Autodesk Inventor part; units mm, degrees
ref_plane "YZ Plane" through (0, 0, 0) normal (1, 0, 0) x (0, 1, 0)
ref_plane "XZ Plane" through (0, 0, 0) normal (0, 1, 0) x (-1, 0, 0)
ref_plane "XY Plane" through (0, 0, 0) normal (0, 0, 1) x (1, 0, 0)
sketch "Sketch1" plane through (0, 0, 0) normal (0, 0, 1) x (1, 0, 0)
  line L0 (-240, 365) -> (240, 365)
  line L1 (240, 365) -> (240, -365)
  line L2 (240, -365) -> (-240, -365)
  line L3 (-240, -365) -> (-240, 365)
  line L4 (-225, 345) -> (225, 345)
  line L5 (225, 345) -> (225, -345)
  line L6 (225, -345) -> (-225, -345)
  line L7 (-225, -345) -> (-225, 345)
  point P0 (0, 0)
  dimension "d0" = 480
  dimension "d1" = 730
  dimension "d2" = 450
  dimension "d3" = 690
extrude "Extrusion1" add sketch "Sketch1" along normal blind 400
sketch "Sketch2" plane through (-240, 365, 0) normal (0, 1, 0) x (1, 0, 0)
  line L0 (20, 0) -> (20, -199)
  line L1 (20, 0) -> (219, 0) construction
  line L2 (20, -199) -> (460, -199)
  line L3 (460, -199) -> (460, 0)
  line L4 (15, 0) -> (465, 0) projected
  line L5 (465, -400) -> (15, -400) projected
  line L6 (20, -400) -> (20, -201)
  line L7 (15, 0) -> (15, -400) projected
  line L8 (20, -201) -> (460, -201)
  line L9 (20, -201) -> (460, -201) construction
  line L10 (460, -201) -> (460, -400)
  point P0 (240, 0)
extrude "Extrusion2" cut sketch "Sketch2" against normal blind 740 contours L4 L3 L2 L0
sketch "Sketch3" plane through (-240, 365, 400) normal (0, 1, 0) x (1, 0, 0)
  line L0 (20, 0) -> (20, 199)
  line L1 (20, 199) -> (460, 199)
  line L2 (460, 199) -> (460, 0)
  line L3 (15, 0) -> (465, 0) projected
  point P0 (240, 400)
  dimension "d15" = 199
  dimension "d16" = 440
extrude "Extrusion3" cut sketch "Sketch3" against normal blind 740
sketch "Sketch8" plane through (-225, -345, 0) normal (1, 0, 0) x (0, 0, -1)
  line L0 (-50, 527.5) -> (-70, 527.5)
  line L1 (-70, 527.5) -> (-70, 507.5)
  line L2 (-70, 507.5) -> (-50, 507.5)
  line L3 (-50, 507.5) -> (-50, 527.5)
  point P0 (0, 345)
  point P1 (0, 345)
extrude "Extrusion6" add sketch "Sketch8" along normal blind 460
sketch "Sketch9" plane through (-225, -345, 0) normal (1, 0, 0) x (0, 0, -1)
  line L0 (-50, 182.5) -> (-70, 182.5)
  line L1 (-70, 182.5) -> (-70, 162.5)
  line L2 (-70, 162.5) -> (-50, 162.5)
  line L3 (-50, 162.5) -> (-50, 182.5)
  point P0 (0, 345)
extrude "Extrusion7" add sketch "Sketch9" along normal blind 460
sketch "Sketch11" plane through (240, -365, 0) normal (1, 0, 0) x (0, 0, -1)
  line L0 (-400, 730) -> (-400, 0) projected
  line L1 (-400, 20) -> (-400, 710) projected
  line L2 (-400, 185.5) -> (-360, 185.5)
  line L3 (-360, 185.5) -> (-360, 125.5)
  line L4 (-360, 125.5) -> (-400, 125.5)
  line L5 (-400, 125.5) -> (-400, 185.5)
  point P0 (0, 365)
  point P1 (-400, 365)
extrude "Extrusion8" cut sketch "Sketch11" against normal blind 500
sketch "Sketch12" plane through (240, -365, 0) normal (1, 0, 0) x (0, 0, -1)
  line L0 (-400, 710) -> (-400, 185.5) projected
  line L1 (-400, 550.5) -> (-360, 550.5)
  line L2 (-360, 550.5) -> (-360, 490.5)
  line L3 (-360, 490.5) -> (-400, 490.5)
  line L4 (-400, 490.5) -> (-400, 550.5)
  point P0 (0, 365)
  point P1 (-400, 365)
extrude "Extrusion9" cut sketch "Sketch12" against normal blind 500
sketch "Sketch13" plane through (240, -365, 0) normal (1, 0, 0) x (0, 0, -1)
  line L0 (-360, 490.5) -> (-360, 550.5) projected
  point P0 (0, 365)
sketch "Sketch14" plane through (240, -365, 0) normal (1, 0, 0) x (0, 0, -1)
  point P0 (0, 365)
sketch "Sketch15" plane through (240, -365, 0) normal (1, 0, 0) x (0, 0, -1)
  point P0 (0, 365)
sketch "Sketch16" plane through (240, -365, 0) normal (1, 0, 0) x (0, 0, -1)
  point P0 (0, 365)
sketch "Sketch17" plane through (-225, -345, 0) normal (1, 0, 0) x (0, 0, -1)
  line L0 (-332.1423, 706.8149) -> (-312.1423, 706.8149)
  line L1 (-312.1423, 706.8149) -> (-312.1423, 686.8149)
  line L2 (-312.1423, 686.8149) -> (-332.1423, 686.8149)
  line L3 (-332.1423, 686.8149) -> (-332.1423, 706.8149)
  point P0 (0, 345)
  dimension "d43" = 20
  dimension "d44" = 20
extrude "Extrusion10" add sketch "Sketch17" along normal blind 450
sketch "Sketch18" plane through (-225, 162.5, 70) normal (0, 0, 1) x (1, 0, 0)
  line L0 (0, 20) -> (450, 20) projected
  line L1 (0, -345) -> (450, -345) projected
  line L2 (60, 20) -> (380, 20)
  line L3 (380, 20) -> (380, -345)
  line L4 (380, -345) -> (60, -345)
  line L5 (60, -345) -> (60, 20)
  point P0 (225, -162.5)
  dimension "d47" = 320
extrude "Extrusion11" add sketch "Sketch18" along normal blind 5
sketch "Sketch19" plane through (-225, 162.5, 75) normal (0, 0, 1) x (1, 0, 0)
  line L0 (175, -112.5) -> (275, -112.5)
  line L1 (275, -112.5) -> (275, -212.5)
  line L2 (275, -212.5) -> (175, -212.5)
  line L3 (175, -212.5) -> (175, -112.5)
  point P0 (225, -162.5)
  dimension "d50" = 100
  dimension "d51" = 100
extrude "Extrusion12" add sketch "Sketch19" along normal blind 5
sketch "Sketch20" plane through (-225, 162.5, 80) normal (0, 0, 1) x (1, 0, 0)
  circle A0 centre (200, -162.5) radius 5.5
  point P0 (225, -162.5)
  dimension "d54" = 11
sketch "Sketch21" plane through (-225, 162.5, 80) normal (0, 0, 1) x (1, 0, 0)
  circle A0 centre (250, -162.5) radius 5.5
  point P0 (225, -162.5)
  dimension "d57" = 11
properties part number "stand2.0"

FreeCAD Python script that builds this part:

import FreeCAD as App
import Part
import Sketcher

V = App.Vector

doc = App.newDocument("Part")
body = doc.addObject("PartDesign::Body", "Body")

# Sketch on XY plane
sketch1 = body.newObject("Sketcher::SketchObject", "Sketch")
sketch1.AttachmentSupport = (doc.getObject("XY_Plane"), [""])
sketch1.MapMode = "FlatFace"
sketch1.addGeometry(Part.LineSegment(V(240, 365, 0), V(-240, 365, 0)), False)
sketch1.addGeometry(Part.LineSegment(V(-240, 365, 0), V(-240, -365, 0)), False)
sketch1.addGeometry(Part.LineSegment(V(-240, -365, 0), V(240, -365, 0)), False)
sketch1.addGeometry(Part.LineSegment(V(240, -365, 0), V(240, 365, 0)), False)
sketch1.addGeometry(Part.LineSegment(V(-225, -345, 0), V(-225, 345, 0)), False)
sketch1.addGeometry(Part.LineSegment(V(-225, 345, 0), V(225, 345, 0)), False)
sketch1.addGeometry(Part.LineSegment(V(225, 345, 0), V(225, -345, 0)), False)
sketch1.addGeometry(Part.LineSegment(V(225, -345, 0), V(-225, -345, 0)), False)
sketch1.addConstraint(Sketcher.Constraint("Coincident", 0, 2, 1, 1))
sketch1.addConstraint(Sketcher.Constraint("Coincident", 1, 2, 2, 1))
sketch1.addConstraint(Sketcher.Constraint("Coincident", 2, 2, 3, 1))
sketch1.addConstraint(Sketcher.Constraint("Coincident", 3, 2, 0, 1))
sketch1.addConstraint(Sketcher.Constraint("Coincident", 4, 2, 5, 1))
sketch1.addConstraint(Sketcher.Constraint("Coincident", 5, 2, 6, 1))
sketch1.addConstraint(Sketcher.Constraint("Coincident", 6, 2, 7, 1))
sketch1.addConstraint(Sketcher.Constraint("Coincident", 7, 2, 4, 1))
sketch1.addConstraint(Sketcher.Constraint("Horizontal", 0))
sketch1.addConstraint(Sketcher.Constraint("Vertical", 1))
sketch1.addConstraint(Sketcher.Constraint("Horizontal", 2))
sketch1.addConstraint(Sketcher.Constraint("Vertical", 3))
sketch1.addConstraint(Sketcher.Constraint("Vertical", 4))
sketch1.addConstraint(Sketcher.Constraint("Horizontal", 5))
sketch1.addConstraint(Sketcher.Constraint("Vertical", 6))
sketch1.addConstraint(Sketcher.Constraint("Horizontal", 7))
sketch1.addConstraint(Sketcher.Constraint("Symmetric", 0, 2, 2, 2, -1, 1))
sketch1.addConstraint(Sketcher.Constraint("Symmetric", 4, 2, 6, 2, -1, 1))
sketch1.addConstraint(Sketcher.Constraint("DistanceX", 0, 2, 0, 1, 480.0))
sketch1.addConstraint(Sketcher.Constraint("DistanceX", 5, 1, 5, 2, 450.0))
sketch1.addConstraint(Sketcher.Constraint("DistanceY", 1, 2, 1, 1, 730.0))
sketch1.addConstraint(Sketcher.Constraint("DistanceY", 4, 1, 4, 2, 690.0))
pad1 = body.newObject("PartDesign::Pad", "Pad")
pad1.Profile = sketch1
pad1.Length = 400

# Sketch on XZ plane
sketch2 = body.newObject("Sketcher::SketchObject", "Sketch001")
sketch2.AttachmentSupport = (doc.getObject("XZ_Plane"), [""])
sketch2.MapMode = "FlatFace"
sketch2.AttachmentOffset = App.Placement(V(0, 0, -365), App.Rotation())
sketch2.addGeometry(Part.LineSegment(V(220, 0, 0), V(-220, 0, 0)), False)
sketch2.addGeometry(Part.LineSegment(V(-220, 0, 0), V(-220, 199, 0)), False)
sketch2.addGeometry(Part.LineSegment(V(-220, 199, 0), V(220, 199, 0)), False)
sketch2.addGeometry(Part.LineSegment(V(220, 199, 0), V(220, 0, 0)), False)
sketch2.addConstraint(Sketcher.Constraint("Coincident", 0, 2, 1, 1))
sketch2.addConstraint(Sketcher.Constraint("Coincident", 1, 2, 2, 1))
sketch2.addConstraint(Sketcher.Constraint("Coincident", 2, 2, 3, 1))
sketch2.addConstraint(Sketcher.Constraint("Coincident", 3, 2, 0, 1))
sketch2.addConstraint(Sketcher.Constraint("Horizontal", 0))
sketch2.addConstraint(Sketcher.Constraint("Vertical", 1))
sketch2.addConstraint(Sketcher.Constraint("Horizontal", 2))
sketch2.addConstraint(Sketcher.Constraint("Vertical", 3))
sketch2.addConstraint(Sketcher.Constraint("Symmetric", 0, 2, 3, 2, -1, 1))
sketch2.addConstraint(Sketcher.Constraint("DistanceX", 0, 2, 0, 1, 440.0))
sketch2.addConstraint(Sketcher.Constraint("DistanceY", 1, 1, 1, 2, 199.0))
pocket1 = body.newObject("PartDesign::Pocket", "Pocket")
pocket1.Profile = sketch2
pocket1.Length = 740
pocket1.Reversed = True

# Sketch on XZ plane
sketch3 = body.newObject("Sketcher::SketchObject", "Sketch002")
sketch3.AttachmentSupport = (doc.getObject("XZ_Plane"), [""])
sketch3.MapMode = "FlatFace"
sketch3.AttachmentOffset = App.Placement(V(0, 0, -365), App.Rotation())
sketch3.addGeometry(Part.LineSegment(V(-220, 201, 0), V(-220, 400, 0)), False)
sketch3.addGeometry(Part.LineSegment(V(-220, 400, 0), V(220, 400, 0)), False)
sketch3.addGeometry(Part.LineSegment(V(220, 400, 0), V(220, 201, 0)), False)
sketch3.addGeometry(Part.LineSegment(V(220, 201, 0), V(-220, 201, 0)), False)
sketch3.addConstraint(Sketcher.Constraint("Coincident", 0, 2, 1, 1))
sketch3.addConstraint(Sketcher.Constraint("Coincident", 1, 2, 2, 1))
sketch3.addConstraint(Sketcher.Constraint("Coincident", 2, 2, 3, 1))
sketch3.addConstraint(Sketcher.Constraint("Coincident", 3, 2, 0, 1))
sketch3.addConstraint(Sketcher.Constraint("Vertical", 0))
sketch3.addConstraint(Sketcher.Constraint("Horizontal", 1))
sketch3.addConstraint(Sketcher.Constraint("Vertical", 2))
sketch3.addConstraint(Sketcher.Constraint("Horizontal", 3))
sketch3.addConstraint(Sketcher.Constraint("DistanceX", 1, 1, 1, 2, 440.0))
sketch3.addConstraint(Sketcher.Constraint("DistanceY", 0, 1, 0, 2, 199.0))
sketch3.addConstraint(Sketcher.Constraint("DistanceX", 0, 2, -1, 1, 220.0))
sketch3.addConstraint(Sketcher.Constraint("DistanceY", -1, 1, 0, 2, 400.0))
pocket2 = body.newObject("PartDesign::Pocket", "Pocket001")
pocket2.Profile = sketch3
pocket2.Length = 740
pocket2.Reversed = True

# Sketch on YZ plane
sketch4 = body.newObject("Sketcher::SketchObject", "Sketch003")
sketch4.AttachmentSupport = (doc.getObject("YZ_Plane"), [""])
sketch4.MapMode = "FlatFace"
sketch4.AttachmentOffset = App.Placement(V(0, 0, -225), App.Rotation())
sketch4.addGeometry(Part.LineSegment(V(162.5, 50, 0), V(182.5, 50, 0)), False)
sketch4.addGeometry(Part.LineSegment(V(182.5, 50, 0), V(182.5, 70, 0)), False)
sketch4.addGeometry(Part.LineSegment(V(182.5, 70, 0), V(162.5, 70, 0)), False)
sketch4.addGeometry(Part.LineSegment(V(162.5, 70, 0), V(162.5, 50, 0)), False)
sketch4.addConstraint(Sketcher.Constraint("Coincident", 0, 2, 1, 1))
sketch4.addConstraint(Sketcher.Constraint("Coincident", 1, 2, 2, 1))
sketch4.addConstraint(Sketcher.Constraint("Coincident", 2, 2, 3, 1))
sketch4.addConstraint(Sketcher.Constraint("Coincident", 3, 2, 0, 1))
sketch4.addConstraint(Sketcher.Constraint("Horizontal", 0))
sketch4.addConstraint(Sketcher.Constraint("Vertical", 1))
sketch4.addConstraint(Sketcher.Constraint("Horizontal", 2))
sketch4.addConstraint(Sketcher.Constraint("Vertical", 3))
sketch4.addConstraint(Sketcher.Constraint("Equal", 2, 1))
sketch4.addConstraint(Sketcher.Constraint("DistanceX", 0, 1, 0, 2, 20.0))
sketch4.addConstraint(Sketcher.Constraint("DistanceY", -1, 1, 0, 2, 50.0))
sketch4.addConstraint(Sketcher.Constraint("DistanceX", -1, 1, 0, 2, 182.5))
pad2 = body.newObject("PartDesign::Pad", "Pad001")
pad2.Profile = sketch4
pad2.Length = 460

# Sketch on YZ plane
sketch5 = body.newObject("Sketcher::SketchObject", "Sketch004")
sketch5.AttachmentSupport = (doc.getObject("YZ_Plane"), [""])
sketch5.MapMode = "FlatFace"
sketch5.AttachmentOffset = App.Placement(V(0, 0, -225), App.Rotation())
sketch5.addGeometry(Part.LineSegment(V(-182.5, 50, 0), V(-162.5, 50, 0)), False)
sketch5.addGeometry(Part.LineSegment(V(-162.5, 50, 0), V(-162.5, 70, 0)), False)
sketch5.addGeometry(Part.LineSegment(V(-162.5, 70, 0), V(-182.5, 70, 0)), False)
sketch5.addGeometry(Part.LineSegment(V(-182.5, 70, 0), V(-182.5, 50, 0)), False)
sketch5.addConstraint(Sketcher.Constraint("Coincident", 0, 2, 1, 1))
sketch5.addConstraint(Sketcher.Constraint("Coincident", 1, 2, 2, 1))
sketch5.addConstraint(Sketcher.Constraint("Coincident", 2, 2, 3, 1))
sketch5.addConstraint(Sketcher.Constraint("Coincident", 3, 2, 0, 1))
sketch5.addConstraint(Sketcher.Constraint("Horizontal", 0))
sketch5.addConstraint(Sketcher.Constraint("Vertical", 1))
sketch5.addConstraint(Sketcher.Constraint("Horizontal", 2))
sketch5.addConstraint(Sketcher.Constraint("Vertical", 3))
sketch5.addConstraint(Sketcher.Constraint("Equal", 2, 1))
sketch5.addConstraint(Sketcher.Constraint("DistanceX", 0, 1, 0, 2, 20.0))
sketch5.addConstraint(Sketcher.Constraint("DistanceY", -1, 1, 0, 2, 50.0))
sketch5.addConstraint(Sketcher.Constraint("DistanceX", 0, 2, -1, 1, 162.5))
pad3 = body.newObject("PartDesign::Pad", "Pad002")
pad3.Profile = sketch5
pad3.Length = 460

# Sketch on YZ plane
sketch6 = body.newObject("Sketcher::SketchObject", "Sketch005")
sketch6.AttachmentSupport = (doc.getObject("YZ_Plane"), [""])
sketch6.MapMode = "FlatFace"
sketch6.AttachmentOffset = App.Placement(V(0, 0, 240), App.Rotation())
sketch6.addGeometry(Part.LineSegment(V(-179.5, 360, 0), V(-179.5, 400, 0)), False)
sketch6.addGeometry(Part.LineSegment(V(-179.5, 400, 0), V(-239.5, 400, 0)), False)
sketch6.addGeometry(Part.LineSegment(V(-239.5, 400, 0), V(-239.5, 360, 0)), False)
sketch6.addGeometry(Part.LineSegment(V(-239.5, 360, 0), V(-179.5, 360, 0)), False)
sketch6.addConstraint(Sketcher.Constraint("Coincident", 0, 2, 1, 1))
sketch6.addConstraint(Sketcher.Constraint("Coincident", 1, 2, 2, 1))
sketch6.addConstraint(Sketcher.Constraint("Coincident", 2, 2, 3, 1))
sketch6.addConstraint(Sketcher.Constraint("Coincident", 3, 2, 0, 1))
sketch6.addConstraint(Sketcher.Constraint("Vertical", 0))
sketch6.addConstraint(Sketcher.Constraint("Horizontal", 1))
sketch6.addConstraint(Sketcher.Constraint("Vertical", 2))
sketch6.addConstraint(Sketcher.Constraint("Horizontal", 3))
sketch6.addConstraint(Sketcher.Constraint("DistanceX", 1, 2, 1, 1, 60.0))
sketch6.addConstraint(Sketcher.Constraint("DistanceY", 0, 1, 0, 2, 40.0))
sketch6.addConstraint(Sketcher.Constraint("DistanceY", -1, 1, 0, 2, 400.0))
sketch6.addConstraint(Sketcher.Constraint("DistanceX", 0, 2, -1, 1, 179.5))
pocket3 = body.newObject("PartDesign::Pocket", "Pocket002")
pocket3.Profile = sketch6
pocket3.Length = 500

# Sketch on YZ plane
sketch7 = body.newObject("Sketcher::SketchObject", "Sketch006")
sketch7.AttachmentSupport = (doc.getObject("YZ_Plane"), [""])
sketch7.MapMode = "FlatFace"
sketch7.AttachmentOffset = App.Placement(V(0, 0, 240), App.Rotation())
sketch7.addGeometry(Part.LineSegment(V(185.5, 360, 0), V(185.5, 400, 0)), False)
sketch7.addGeometry(Part.LineSegment(V(185.5, 400, 0), V(125.5, 400, 0)), False)
sketch7.addGeometry(Part.LineSegment(V(125.5, 400, 0), V(125.5, 360, 0)), False)
sketch7.addGeometry(Part.LineSegment(V(125.5, 360, 0), V(185.5, 360, 0)), False)
sketch7.addConstraint(Sketcher.Constraint("Coincident", 0, 2, 1, 1))
sketch7.addConstraint(Sketcher.Constraint("Coincident", 1, 2, 2, 1))
sketch7.addConstraint(Sketcher.Constraint("Coincident", 2, 2, 3, 1))
sketch7.addConstraint(Sketcher.Constraint("Coincident", 3, 2, 0, 1))
sketch7.addConstraint(Sketcher.Constraint("Vertical", 0))
sketch7.addConstraint(Sketcher.Constraint("Horizontal", 1))
sketch7.addConstraint(Sketcher.Constraint("Vertical", 2))
sketch7.addConstraint(Sketcher.Constraint("Horizontal", 3))
sketch7.addConstraint(Sketcher.Constraint("DistanceX", 1, 2, 1, 1, 60.0))
sketch7.addConstraint(Sketcher.Constraint("DistanceY", 0, 1, 0, 2, 40.0))
sketch7.addConstraint(Sketcher.Constraint("DistanceY", -1, 1, 0, 2, 400.0))
sketch7.addConstraint(Sketcher.Constraint("DistanceX", -1, 1, 0, 2, 185.5))
pocket4 = body.newObject("PartDesign::Pocket", "Pocket003")
pocket4.Profile = sketch7
pocket4.Length = 500

# Sketch on YZ plane
sketch8 = body.newObject("Sketcher::SketchObject", "Sketch007")
sketch8.AttachmentSupport = (doc.getObject("YZ_Plane"), [""])
sketch8.MapMode = "FlatFace"
sketch8.AttachmentOffset = App.Placement(V(0, 0, -225), App.Rotation())
sketch8.addGeometry(Part.LineSegment(V(361.8149, 312.1423, 0), V(361.8149, 332.1423, 0)), False)
sketch8.addGeometry(Part.LineSegment(V(361.8149, 332.1423, 0), V(341.8149, 332.1423, 0)), False)
sketch8.addGeometry(Part.LineSegment(V(341.8149, 332.1423, 0), V(341.8149, 312.1423, 0)), False)
sketch8.addGeometry(Part.LineSegment(V(341.8149, 312.1423, 0), V(361.8149, 312.1423, 0)), False)
sketch8.addConstraint(Sketcher.Constraint("Coincident", 0, 2, 1, 1))
sketch8.addConstraint(Sketcher.Constraint("Coincident", 1, 2, 2, 1))
sketch8.addConstraint(Sketcher.Constraint("Coincident", 2, 2, 3, 1))
sketch8.addConstraint(Sketcher.Constraint("Coincident", 3, 2, 0, 1))
sketch8.addConstraint(Sketcher.Constraint("Vertical", 0))
sketch8.addConstraint(Sketcher.Constraint("Horizontal", 1))
sketch8.addConstraint(Sketcher.Constraint("Vertical", 2))
sketch8.addConstraint(Sketcher.Constraint("Horizontal", 3))
sketch8.addConstraint(Sketcher.Constraint("Equal", 3, 0))
sketch8.addConstraint(Sketcher.Constraint("DistanceX", 1, 2, 1, 1, 20.0))
sketch8.addConstraint(Sketcher.Constraint("DistanceX", -1, 1, 0, 2, 361.815))
sketch8.addConstraint(Sketcher.Constraint("DistanceY", -1, 1, 0, 2, 332.1423))
pad4 = body.newObject("PartDesign::Pad", "Pad003")
pad4.Profile = sketch8
pad4.Length = 450

# Sketch on XY plane
sketch9 = body.newObject("Sketcher::SketchObject", "Sketch008")
sketch9.AttachmentSupport = (doc.getObject("XY_Plane"), [""])
sketch9.MapMode = "FlatFace"
sketch9.AttachmentOffset = App.Placement(V(0, 0, 70), App.Rotation())
sketch9.addGeometry(Part.LineSegment(V(155, 182.5, 0), V(-165, 182.5, 0)), False)
sketch9.addGeometry(Part.LineSegment(V(-165, 182.5, 0), V(-165, -182.5, 0)), False)
sketch9.addGeometry(Part.LineSegment(V(-165, -182.5, 0), V(155, -182.5, 0)), False)
sketch9.addGeometry(Part.LineSegment(V(155, -182.5, 0), V(155, 182.5, 0)), False)
sketch9.addConstraint(Sketcher.Constraint("Coincident", 0, 2, 1, 1))
sketch9.addConstraint(Sketcher.Constraint("Coincident", 1, 2, 2, 1))
sketch9.addConstraint(Sketcher.Constraint("Coincident", 2, 2, 3, 1))
sketch9.addConstraint(Sketcher.Constraint("Coincident", 3, 2, 0, 1))
sketch9.addConstraint(Sketcher.Constraint("Horizontal", 0))
sketch9.addConstraint(Sketcher.Constraint("Vertical", 1))
sketch9.addConstraint(Sketcher.Constraint("Horizontal", 2))
sketch9.addConstraint(Sketcher.Constraint("Vertical", 3))
sketch9.addConstraint(Sketcher.Constraint("DistanceX", 0, 2, 0, 1, 320.0))
sketch9.addConstraint(Sketcher.Constraint("DistanceY", 1, 2, 1, 1, 365.0))
sketch9.addConstraint(Sketcher.Constraint("DistanceX", 0, 2, -1, 1, 165.0))
sketch9.addConstraint(Sketcher.Constraint("DistanceY", -1, 1, 0, 2, 182.5))
pad5 = body.newObject("PartDesign::Pad", "Pad004")
pad5.Profile = sketch9
pad5.Length = 5

# Sketch on XY plane
sketch10 = body.newObject("Sketcher::SketchObject", "Sketch009")
sketch10.AttachmentSupport = (doc.getObject("XY_Plane"), [""])
sketch10.MapMode = "FlatFace"
sketch10.AttachmentOffset = App.Placement(V(0, 0, 75), App.Rotation())
sketch10.addGeometry(Part.LineSegment(V(50, 50, 0), V(-50, 50, 0)), False)
sketch10.addGeometry(Part.LineSegment(V(-50, 50, 0), V(-50, -50, 0)), False)
sketch10.addGeometry(Part.LineSegment(V(-50, -50, 0), V(50, -50, 0)), False)
sketch10.addGeometry(Part.LineSegment(V(50, -50, 0), V(50, 50, 0)), False)
sketch10.addConstraint(Sketcher.Constraint("Coincident", 0, 2, 1, 1))
sketch10.addConstraint(Sketcher.Constraint("Coincident", 1, 2, 2, 1))
sketch10.addConstraint(Sketcher.Constraint("Coincident", 2, 2, 3, 1))
sketch10.addConstraint(Sketcher.Constraint("Coincident", 3, 2, 0, 1))
sketch10.addConstraint(Sketcher.Constraint("Horizontal", 0))
sketch10.addConstraint(Sketcher.Constraint("Vertical", 1))
sketch10.addConstraint(Sketcher.Constraint("Horizontal", 2))
sketch10.addConstraint(Sketcher.Constraint("Vertical", 3))
sketch10.addConstraint(Sketcher.Constraint("Symmetric", 0, 2, 2, 2, -1, 1))
sketch10.addConstraint(Sketcher.Constraint("Equal", 2, 1))
sketch10.addConstraint(Sketcher.Constraint("DistanceX", 0, 2, 0, 1, 100.0))
pad6 = body.newObject("PartDesign::Pad", "Pad005")
pad6.Profile = sketch10
pad6.Length = 5

doc.recompute()
